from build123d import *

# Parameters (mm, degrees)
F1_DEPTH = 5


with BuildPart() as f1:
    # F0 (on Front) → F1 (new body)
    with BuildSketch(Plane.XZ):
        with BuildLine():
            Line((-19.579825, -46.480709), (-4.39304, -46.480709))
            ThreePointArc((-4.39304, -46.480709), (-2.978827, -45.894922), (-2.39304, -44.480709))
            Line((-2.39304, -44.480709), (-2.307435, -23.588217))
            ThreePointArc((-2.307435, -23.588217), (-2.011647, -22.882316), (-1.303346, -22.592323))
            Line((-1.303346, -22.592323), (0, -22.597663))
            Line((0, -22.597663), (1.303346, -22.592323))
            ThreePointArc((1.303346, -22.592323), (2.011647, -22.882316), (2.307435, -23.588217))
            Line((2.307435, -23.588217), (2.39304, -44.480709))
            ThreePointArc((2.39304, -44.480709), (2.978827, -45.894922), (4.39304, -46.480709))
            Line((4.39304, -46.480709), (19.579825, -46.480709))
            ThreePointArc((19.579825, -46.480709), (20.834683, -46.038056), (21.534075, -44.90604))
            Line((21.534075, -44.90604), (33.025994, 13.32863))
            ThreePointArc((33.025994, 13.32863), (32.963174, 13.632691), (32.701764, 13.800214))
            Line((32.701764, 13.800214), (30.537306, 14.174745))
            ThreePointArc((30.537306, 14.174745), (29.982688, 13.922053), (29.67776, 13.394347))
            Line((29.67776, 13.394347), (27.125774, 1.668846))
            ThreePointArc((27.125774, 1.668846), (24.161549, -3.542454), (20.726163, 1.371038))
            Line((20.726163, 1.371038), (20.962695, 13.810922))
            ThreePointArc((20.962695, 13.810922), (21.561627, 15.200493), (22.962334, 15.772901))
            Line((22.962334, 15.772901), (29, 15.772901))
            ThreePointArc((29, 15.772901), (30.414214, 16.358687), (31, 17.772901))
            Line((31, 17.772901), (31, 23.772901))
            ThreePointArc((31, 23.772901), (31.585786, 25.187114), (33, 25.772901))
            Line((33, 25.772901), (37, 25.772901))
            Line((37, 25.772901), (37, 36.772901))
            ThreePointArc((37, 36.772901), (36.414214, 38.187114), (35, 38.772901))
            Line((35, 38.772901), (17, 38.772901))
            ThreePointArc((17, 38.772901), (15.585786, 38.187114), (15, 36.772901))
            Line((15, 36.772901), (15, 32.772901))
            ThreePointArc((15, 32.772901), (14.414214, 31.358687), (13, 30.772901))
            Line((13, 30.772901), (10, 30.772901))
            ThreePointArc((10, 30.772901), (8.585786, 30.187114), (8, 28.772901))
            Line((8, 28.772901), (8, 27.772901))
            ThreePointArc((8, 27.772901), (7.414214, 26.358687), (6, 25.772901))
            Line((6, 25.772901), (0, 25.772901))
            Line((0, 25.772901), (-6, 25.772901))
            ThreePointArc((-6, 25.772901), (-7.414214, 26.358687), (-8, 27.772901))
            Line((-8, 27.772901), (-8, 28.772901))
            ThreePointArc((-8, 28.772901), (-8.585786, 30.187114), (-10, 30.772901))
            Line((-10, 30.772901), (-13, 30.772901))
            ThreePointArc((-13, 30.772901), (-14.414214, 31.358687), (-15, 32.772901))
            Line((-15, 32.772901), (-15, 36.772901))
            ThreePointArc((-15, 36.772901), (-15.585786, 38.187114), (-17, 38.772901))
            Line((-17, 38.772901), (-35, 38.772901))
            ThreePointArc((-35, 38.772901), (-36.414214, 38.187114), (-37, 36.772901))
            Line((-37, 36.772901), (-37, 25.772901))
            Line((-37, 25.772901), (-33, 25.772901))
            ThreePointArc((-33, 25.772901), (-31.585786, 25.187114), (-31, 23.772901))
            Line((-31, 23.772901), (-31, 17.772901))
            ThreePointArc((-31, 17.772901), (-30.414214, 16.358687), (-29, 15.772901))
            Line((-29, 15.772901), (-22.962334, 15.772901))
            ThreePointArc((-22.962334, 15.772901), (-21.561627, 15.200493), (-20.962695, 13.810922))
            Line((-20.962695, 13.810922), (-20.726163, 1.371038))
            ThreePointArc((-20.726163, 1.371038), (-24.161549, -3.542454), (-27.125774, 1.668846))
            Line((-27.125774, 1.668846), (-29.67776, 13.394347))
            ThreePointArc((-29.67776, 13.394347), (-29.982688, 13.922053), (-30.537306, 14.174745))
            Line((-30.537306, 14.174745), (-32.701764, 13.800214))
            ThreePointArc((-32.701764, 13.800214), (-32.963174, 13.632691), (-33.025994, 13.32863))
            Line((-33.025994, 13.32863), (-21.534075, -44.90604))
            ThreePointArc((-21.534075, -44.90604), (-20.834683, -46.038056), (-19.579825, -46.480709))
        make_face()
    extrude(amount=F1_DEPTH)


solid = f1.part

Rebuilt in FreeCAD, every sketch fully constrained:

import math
import FreeCAD as App
import Part
import Sketcher
Q = App.Units.Quantity

doc = App.newDocument("Part")
body = doc.addObject("PartDesign::Body", "Body")

# Sketch on XZ plane
sketch1 = body.newObject("Sketcher::SketchObject", "Sketch")
sketch1.AttachmentSupport = (doc.getObject("XZ_Plane"), [""])
sketch1.MapMode = "FlatFace"
sketch1.addGeometry([
    Part.LineSegment(App.Vector(-19.58, -46.48, 0), App.Vector(-4.39, -46.48, 0)),  # 0
    Part.ArcOfCircle(Part.Circle(App.Vector(-4.39, -44.48, 0), App.Vector(0, 0, 1), 2), math.radians(-90), math.radians(0)),  # 1
    Part.LineSegment(App.Vector(-2.39, -44.48, 0), App.Vector(-2.31, -23.59, 0)),  # 2
    Part.ArcOfCircle(Part.Circle(App.Vector(-1.31, -23.59, 0), App.Vector(0, 0, 1), 1), math.radians(90), math.radians(180)),  # 3
    Part.LineSegment(App.Vector(-1.3, -22.59, 0), App.Vector(0, -22.6, 0)),  # 4
    Part.LineSegment(App.Vector(0, -22.6, 0), App.Vector(1.3, -22.59, 0)),  # 5
    Part.ArcOfCircle(Part.Circle(App.Vector(1.31, -23.59, 0), App.Vector(0, 0, 1), 1), math.radians(0), math.radians(90)),  # 6
    Part.LineSegment(App.Vector(2.31, -23.59, 0), App.Vector(2.39, -44.48, 0)),  # 7
    Part.ArcOfCircle(Part.Circle(App.Vector(4.39, -44.48, 0), App.Vector(0, 0, 1), 2), math.radians(-180), math.radians(-90)),  # 8
    Part.LineSegment(App.Vector(4.39, -46.48, 0), App.Vector(19.58, -46.48, 0)),  # 9
    Part.ArcOfCircle(Part.Circle(App.Vector(19.58, -44.48, 0), App.Vector(0, 0, 1), 2), math.radians(-90), math.radians(-12)),  # 10
    Part.LineSegment(App.Vector(21.53, -44.91, 0), App.Vector(33.03, 13.33, 0)),  # 11
    Part.ArcOfCircle(Part.Circle(App.Vector(32.63, 13.41, 0), App.Vector(0, 0, 1), 0.4), math.radians(-11), math.radians(80)),  # 12
    Part.LineSegment(App.Vector(32.7, 13.8, 0), App.Vector(30.54, 14.17, 0)),  # 13
    Part.ArcOfCircle(Part.Circle(App.Vector(30.65, 13.18, 0), App.Vector(0, 0, 1), 1), math.radians(97), math.radians(168)),  # 14
    Part.LineSegment(App.Vector(29.68, 13.39, 0), App.Vector(27.13, 1.67, 0)),  # 15
    Part.ArcOfCircle(Part.Circle(App.Vector(24, 0, 0), App.Vector(0, 0, 1), 3.55), math.radians(157), math.radians(388)),  # 16
    Part.LineSegment(App.Vector(20.73, 1.37, 0), App.Vector(20.96, 13.81, 0)),  # 17
    Part.ArcOfCircle(Part.Circle(App.Vector(22.96, 13.77, 0), App.Vector(0, 0, 1), 2), math.radians(90), math.radians(179)),  # 18
    Part.LineSegment(App.Vector(22.96, 15.77, 0), App.Vector(29, 15.77, 0)),  # 19
    Part.ArcOfCircle(Part.Circle(App.Vector(29, 17.77, 0), App.Vector(0, 0, 1), 2), math.radians(-90), math.radians(0)),  # 20
    Part.LineSegment(App.Vector(31, 17.77, 0), App.Vector(31, 23.77, 0)),  # 21
    Part.ArcOfCircle(Part.Circle(App.Vector(33, 23.77, 0), App.Vector(0, 0, 1), 2), math.radians(90), math.radians(180)),  # 22
    Part.LineSegment(App.Vector(33, 25.77, 0), App.Vector(37, 25.77, 0)),  # 23
    Part.LineSegment(App.Vector(37, 25.77, 0), App.Vector(37, 36.77, 0)),  # 24
    Part.ArcOfCircle(Part.Circle(App.Vector(35, 36.77, 0), App.Vector(0, 0, 1), 2), math.radians(0), math.radians(90)),  # 25
    Part.LineSegment(App.Vector(35, 38.77, 0), App.Vector(17, 38.77, 0)),  # 26
    Part.ArcOfCircle(Part.Circle(App.Vector(17, 36.77, 0), App.Vector(0, 0, 1), 2), math.radians(90), math.radians(180)),  # 27
    Part.LineSegment(App.Vector(15, 36.77, 0), App.Vector(15, 32.77, 0)),  # 28
    Part.ArcOfCircle(Part.Circle(App.Vector(13, 32.77, 0), App.Vector(0, 0, 1), 2), math.radians(-90), math.radians(0)),  # 29
    Part.LineSegment(App.Vector(13, 30.77, 0), App.Vector(10, 30.77, 0)),  # 30
    Part.ArcOfCircle(Part.Circle(App.Vector(10, 28.77, 0), App.Vector(0, 0, 1), 2), math.radians(90), math.radians(180)),  # 31
    Part.LineSegment(App.Vector(8, 28.77, 0), App.Vector(8, 27.77, 0)),  # 32
    Part.ArcOfCircle(Part.Circle(App.Vector(6, 27.77, 0), App.Vector(0, 0, 1), 2), math.radians(-90), math.radians(0)),  # 33
    Part.LineSegment(App.Vector(6, 25.77, 0), App.Vector(-6, 25.77, 0)),  # 34
    Part.ArcOfCircle(Part.Circle(App.Vector(-6, 27.77, 0), App.Vector(0, 0, 1), 2), math.radians(180), math.radians(270)),  # 35
    Part.LineSegment(App.Vector(-8, 27.77, 0), App.Vector(-8, 28.77, 0)),  # 36
    Part.ArcOfCircle(Part.Circle(App.Vector(-10, 28.77, 0), App.Vector(0, 0, 1), 2), math.radians(0), math.radians(90)),  # 37
    Part.LineSegment(App.Vector(-10, 30.77, 0), App.Vector(-13, 30.77, 0)),  # 38
    Part.ArcOfCircle(Part.Circle(App.Vector(-13, 32.77, 0), App.Vector(0, 0, 1), 2), math.radians(180), math.radians(270)),  # 39
    Part.LineSegment(App.Vector(-15, 32.77, 0), App.Vector(-15, 36.77, 0)),  # 40
    Part.ArcOfCircle(Part.Circle(App.Vector(-17, 36.77, 0), App.Vector(0, 0, 1), 2), math.radians(0), math.radians(90)),  # 41
    Part.LineSegment(App.Vector(-17, 38.77, 0), App.Vector(-35, 38.77, 0)),  # 42
    Part.ArcOfCircle(Part.Circle(App.Vector(-35, 36.77, 0), App.Vector(0, 0, 1), 2), math.radians(90), math.radians(180)),  # 43
    Part.LineSegment(App.Vector(-37, 36.77, 0), App.Vector(-37, 25.77, 0)),  # 44
    Part.LineSegment(App.Vector(-37, 25.77, 0), App.Vector(-33, 25.77, 0)),  # 45
    Part.ArcOfCircle(Part.Circle(App.Vector(-33, 23.77, 0), App.Vector(0, 0, 1), 2), math.radians(0), math.radians(90)),  # 46
    Part.LineSegment(App.Vector(-31, 23.77, 0), App.Vector(-31, 17.77, 0)),  # 47
    Part.ArcOfCircle(Part.Circle(App.Vector(-29, 17.77, 0), App.Vector(0, 0, 1), 2), math.radians(180), math.radians(270)),  # 48
    Part.LineSegment(App.Vector(-29, 15.77, 0), App.Vector(-22.96, 15.77, 0)),  # 49
    Part.ArcOfCircle(Part.Circle(App.Vector(-22.96, 13.77, 0), App.Vector(0, 0, 1), 2), math.radians(1), math.radians(90)),  # 50
    Part.LineSegment(App.Vector(-20.96, 13.81, 0), App.Vector(-20.73, 1.37, 0)),  # 51
    Part.ArcOfCircle(Part.Circle(App.Vector(-24, 0, 0), App.Vector(0, 0, 1), 3.55), math.radians(152), math.radians(383)),  # 52
    Part.LineSegment(App.Vector(-27.13, 1.67, 0), App.Vector(-29.68, 13.39, 0)),  # 53
    Part.ArcOfCircle(Part.Circle(App.Vector(-30.65, 13.18, 0), App.Vector(0, 0, 1), 1), math.radians(12), math.radians(83)),  # 54
    Part.LineSegment(App.Vector(-30.54, 14.17, 0), App.Vector(-32.7, 13.8, 0)),  # 55
    Part.ArcOfCircle(Part.Circle(App.Vector(-32.63, 13.41, 0), App.Vector(0, 0, 1), 0.4), math.radians(100), math.radians(191)),  # 56
    Part.LineSegment(App.Vector(-33.03, 13.33, 0), App.Vector(-21.53, -44.91, 0)),  # 57
    Part.ArcOfCircle(Part.Circle(App.Vector(-19.58, -44.48, 0), App.Vector(0, 0, 1), 2), math.radians(-168), math.radians(-90)),  # 58
], False)
sketch1.addConstraint([
    Sketcher.Constraint("Tangent", 0, 2, 1, 1),
    Sketcher.Constraint("Coincident", 1, 2, 2, 1),
    Sketcher.Constraint("Tangent", 2, 2, 3, 2),
    Sketcher.Constraint("Tangent", 3, 1, 4, 1),
    Sketcher.Constraint("Coincident", 4, 2, 5, 1),
    Sketcher.Constraint("Tangent", 5, 2, 6, 2),
    Sketcher.Constraint("Tangent", 6, 1, 7, 1),
    Sketcher.Constraint("Coincident", 7, 2, 8, 1),
    Sketcher.Constraint("Tangent", 8, 2, 9, 1),
    Sketcher.Constraint("Tangent", 9, 2, 10, 1),
    Sketcher.Constraint("Coincident", 10, 2, 11, 1),
    Sketcher.Constraint("Coincident", 11, 2, 12, 1),
    Sketcher.Constraint("Coincident", 12, 2, 13, 1),
    Sketcher.Constraint("Coincident", 13, 2, 14, 1),
    Sketcher.Constraint("Tangent", 14, 2, 15, 1),
    Sketcher.Constraint("Coincident", 15, 2, 16, 2),
    Sketcher.Constraint("Coincident", 16, 1, 17, 1),
    Sketcher.Constraint("Tangent", 17, 2, 18, 2),
    Sketcher.Constraint("Tangent", 18, 1, 19, 1),
    Sketcher.Constraint("Tangent", 19, 2, 20, 1),
    Sketcher.Constraint("Tangent", 20, 2, 21, 1),
    Sketcher.Constraint("Tangent", 21, 2, 22, 2),
    Sketcher.Constraint("Tangent", 22, 1, 23, 1),
    Sketcher.Constraint("Coincident", 23, 2, 24, 1),
    Sketcher.Constraint("Tangent", 24, 2, 25, 1),
    Sketcher.Constraint("Tangent", 25, 2, 26, 1),
    Sketcher.Constraint("Tangent", 26, 2, 27, 1),
    Sketcher.Constraint("Tangent", 27, 2, 28, 1),
    Sketcher.Constraint("Tangent", 28, 2, 29, 2),
    Sketcher.Constraint("Tangent", 29, 1, 30, 1),
    Sketcher.Constraint("Tangent", 30, 2, 31, 1),
    Sketcher.Constraint("Tangent", 31, 2, 32, 1),
    Sketcher.Constraint("Tangent", 32, 2, 33, 2),
    Sketcher.Constraint("Tangent", 33, 1, 34, 1),
    Sketcher.Constraint("Tangent", 34, 2, 35, 2),
    Sketcher.Constraint("Tangent", 35, 1, 36, 1),
    Sketcher.Constraint("Tangent", 36, 2, 37, 1),
    Sketcher.Constraint("Tangent", 37, 2, 38, 1),
    Sketcher.Constraint("Tangent", 38, 2, 39, 2),
    Sketcher.Constraint("Tangent", 39, 1, 40, 1),
    Sketcher.Constraint("Tangent", 40, 2, 41, 1),
    Sketcher.Constraint("Tangent", 41, 2, 42, 1),
    Sketcher.Constraint("Tangent", 42, 2, 43, 1),
    Sketcher.Constraint("Tangent", 43, 2, 44, 1),
    Sketcher.Constraint("Coincident", 44, 2, 45, 1),
    Sketcher.Constraint("Tangent", 45, 2, 46, 2),
    Sketcher.Constraint("Tangent", 46, 1, 47, 1),
    Sketcher.Constraint("Tangent", 47, 2, 48, 1),
    Sketcher.Constraint("Tangent", 48, 2, 49, 1),
    Sketcher.Constraint("Tangent", 49, 2, 50, 2),
    Sketcher.Constraint("Tangent", 50, 1, 51, 1),
    Sketcher.Constraint("Coincident", 51, 2, 52, 2),
    Sketcher.Constraint("Coincident", 52, 1, 53, 1),
    Sketcher.Constraint("Tangent", 53, 2, 54, 1),
    Sketcher.Constraint("Coincident", 54, 2, 55, 1),
    Sketcher.Constraint("Coincident", 55, 2, 56, 1),
    Sketcher.Constraint("Coincident", 56, 2, 57, 1),
    Sketcher.Constraint("Coincident", 57, 2, 58, 1),
    Sketcher.Constraint("Tangent", 58, 2, 0, 1),
    Sketcher.Constraint("Horizontal", 0),
    Sketcher.Constraint("Horizontal", 9),
    Sketcher.Constraint("Horizontal", 19),
    Sketcher.Constraint("Vertical", 21),
    Sketcher.Constraint("Horizontal", 23),
    Sketcher.Constraint("Vertical", 24),
    Sketcher.Constraint("Horizontal", 26),
    Sketcher.Constraint("Vertical", 28),
    Sketcher.Constraint("Horizontal", 30),
    Sketcher.Constraint("Vertical", 32),
    Sketcher.Constraint("Horizontal", 34),
    Sketcher.Constraint("Vertical", 36),
    Sketcher.Constraint("Horizontal", 38),
    Sketcher.Constraint("Vertical", 40),
    Sketcher.Constraint("Horizontal", 42),
    Sketcher.Constraint("Vertical", 44),
    Sketcher.Constraint("Horizontal", 45),
    Sketcher.Constraint("Vertical", 47),
    Sketcher.Constraint("Horizontal", 49),
    Sketcher.Constraint("Equal", 3, 6),
    Sketcher.Constraint("Equal", 1, 8),
    Sketcher.Constraint("Equal", 8, 10),
    Sketcher.Constraint("Equal", 10, 18),
    Sketcher.Constraint("Equal", 20, 22),
    Sketcher.Constraint("Equal", 22, 25),
    Sketcher.Constraint("Equal", 25, 27),
    Sketcher.Constraint("Equal", 27, 29),
    Sketcher.Constraint("Equal", 29, 31),
    Sketcher.Constraint("Equal", 31, 33),
    Sketcher.Constraint("Equal", 33, 35),
    Sketcher.Constraint("Equal", 35, 37),
    Sketcher.Constraint("Equal", 37, 39),
    Sketcher.Constraint("Equal", 39, 41),
    Sketcher.Constraint("Equal", 41, 43),
    Sketcher.Constraint("Equal", 43, 46),
    Sketcher.Constraint("Equal", 46, 48),
    Sketcher.Constraint("Equal", 46, 50),
    Sketcher.Constraint("Equal", 16, 52),
    Sketcher.Constraint("Equal", 14, 54),
    Sketcher.Constraint("Equal", 12, 56),
    Sketcher.Constraint("Equal", 50, 58),
    Sketcher.Constraint("Symmetric", 16, 3, 52, 3, -1, 1),
    Sketcher.Constraint("Symmetric", 3, 3, 6, 3, -2),
    Sketcher.Constraint("Symmetric", 1, 3, 8, 3, -2),
    Sketcher.Constraint("Symmetric", 31, 3, 37, 3, -2),
    Sketcher.Constraint("Symmetric", 27, 3, 41, 3, -2),
    Sketcher.Constraint("Symmetric", 22, 3, 46, 3, -2),
    Sketcher.Constraint("Symmetric", 18, 3, 50, 3, -2),
    Sketcher.Constraint("Symmetric", 14, 3, 54, 3, -2),
    Sketcher.Constraint("Symmetric", 12, 3, 56, 3, -2),
    Sketcher.Constraint("Symmetric", 10, 3, 58, 3, -2),
    Sketcher.Constraint("Symmetric", 16, 1, 51, 2, -2),
    Sketcher.Constraint("PointOnObject", 4, 2, -2),
    Sketcher.Constraint("Perpendicular", 2, 4),
    Sketcher.Constraint("Horizontal", 58, 3, 1, 2),
    Sketcher.Constraint("Horizontal", 1, 2, 7, 2),
    Sketcher.Constraint("Horizontal", 23, 2, 33, 1),
    Sketcher.Constraint("Horizontal", 15, 2, 52, 1),
    Sketcher.Constraint("Horizontal", 13, 2, 54, 2),
    Sketcher.Constraint("Horizontal", 12, 2, 55, 2),
    Sketcher.Constraint("Horizontal", 11, 2, 56, 2),
    Sketcher.Constraint("Horizontal", 10, 2, 57, 2),
    Sketcher.Constraint("Equal", 26, 42),
    Sketcher.Constraint("Equal", 45, 28),
    Sketcher.Constraint("Radius", 1, Q("2.000002 mm")),
    Sketcher.Constraint("Radius", 3, Q("0.999999 mm")),
    Sketcher.Constraint("Radius", 12, Q("0.399998 mm")),
    Sketcher.Constraint("DistanceX", 23, 1, 23, 2, Q("4 mm")),
    Sketcher.Constraint("DistanceX", 26, 2, 26, 1, Q("18 mm")),
    Sketcher.Constraint("DistanceX", 30, 2, 30, 1, Q("3 mm")),
    Sketcher.Constraint("DistanceX", 34, 2, 34, 1, Q("12 mm")),
    Sketcher.Constraint("DistanceY", 21, 1, 21, 2, Q("6 mm")),
    Sketcher.Constraint("DistanceY", 24, 1, 24, 2, Q("11 mm")),
    Sketcher.Constraint("Distance", 15, Q("12 mm")),
    Sketcher.Constraint("Radius", 14, Q("1.000002 mm")),
    Sketcher.Constraint("Radius", 16, Q("3.546287 mm")),
    Sketcher.Constraint("DistanceX", -1, 1, 16, 3, Q("23.9967 mm")),
    Sketcher.Constraint("DistanceY", -1, 1, 18, 3, Q("13.7729 mm")),
    Sketcher.Constraint("DistanceX", 0, 1, 0, 2, Q("15.186785 mm")),
    Sketcher.Constraint("DistanceX", 19, 1, 19, 2, Q("6.037666 mm")),
    Sketcher.Constraint("DistanceX", 1, 3, -1, 1, Q("4.393042 mm")),
    Sketcher.Constraint("DistanceY", -1, 1, 14, 3, Q("13.181679 mm")),
    Sketcher.Constraint("DistanceY", 0, 2, -1, 1, Q("46.480709 mm")),
    Sketcher.Constraint("DistanceY", 10, 2, -1, 1, Q("44.90604 mm")),
    Sketcher.Constraint("DistanceY", -1, 1, 11, 2, Q("13.32863 mm")),
    Sketcher.Constraint("DistanceX", -1, 1, 14, 2, Q("29.67776 mm")),
    Sketcher.Constraint("DistanceY", -1, 1, 16, 1, Q("1.371038 mm")),
    Sketcher.Constraint("Distance", 2, Q("20.892667 mm")),
    Sketcher.Constraint("Distance", 4, Q("1.303357 mm")),
    Sketcher.Constraint("Distance", 11, Q("59.357737 mm")),
    Sketcher.Constraint("Distance", 13, Q("2.196623 mm")),
    Sketcher.Constraint("DistanceX", -1, 1, 12, 3, Q("32.633564 mm")),
    Sketcher.Constraint("DistanceX", -1, 1, 12, 2, Q("32.701764 mm")),
])
pad1 = body.newObject("PartDesign::Pad", "Pad")
pad1.Profile = sketch1
pad1.Length = 5

doc.recompute()
